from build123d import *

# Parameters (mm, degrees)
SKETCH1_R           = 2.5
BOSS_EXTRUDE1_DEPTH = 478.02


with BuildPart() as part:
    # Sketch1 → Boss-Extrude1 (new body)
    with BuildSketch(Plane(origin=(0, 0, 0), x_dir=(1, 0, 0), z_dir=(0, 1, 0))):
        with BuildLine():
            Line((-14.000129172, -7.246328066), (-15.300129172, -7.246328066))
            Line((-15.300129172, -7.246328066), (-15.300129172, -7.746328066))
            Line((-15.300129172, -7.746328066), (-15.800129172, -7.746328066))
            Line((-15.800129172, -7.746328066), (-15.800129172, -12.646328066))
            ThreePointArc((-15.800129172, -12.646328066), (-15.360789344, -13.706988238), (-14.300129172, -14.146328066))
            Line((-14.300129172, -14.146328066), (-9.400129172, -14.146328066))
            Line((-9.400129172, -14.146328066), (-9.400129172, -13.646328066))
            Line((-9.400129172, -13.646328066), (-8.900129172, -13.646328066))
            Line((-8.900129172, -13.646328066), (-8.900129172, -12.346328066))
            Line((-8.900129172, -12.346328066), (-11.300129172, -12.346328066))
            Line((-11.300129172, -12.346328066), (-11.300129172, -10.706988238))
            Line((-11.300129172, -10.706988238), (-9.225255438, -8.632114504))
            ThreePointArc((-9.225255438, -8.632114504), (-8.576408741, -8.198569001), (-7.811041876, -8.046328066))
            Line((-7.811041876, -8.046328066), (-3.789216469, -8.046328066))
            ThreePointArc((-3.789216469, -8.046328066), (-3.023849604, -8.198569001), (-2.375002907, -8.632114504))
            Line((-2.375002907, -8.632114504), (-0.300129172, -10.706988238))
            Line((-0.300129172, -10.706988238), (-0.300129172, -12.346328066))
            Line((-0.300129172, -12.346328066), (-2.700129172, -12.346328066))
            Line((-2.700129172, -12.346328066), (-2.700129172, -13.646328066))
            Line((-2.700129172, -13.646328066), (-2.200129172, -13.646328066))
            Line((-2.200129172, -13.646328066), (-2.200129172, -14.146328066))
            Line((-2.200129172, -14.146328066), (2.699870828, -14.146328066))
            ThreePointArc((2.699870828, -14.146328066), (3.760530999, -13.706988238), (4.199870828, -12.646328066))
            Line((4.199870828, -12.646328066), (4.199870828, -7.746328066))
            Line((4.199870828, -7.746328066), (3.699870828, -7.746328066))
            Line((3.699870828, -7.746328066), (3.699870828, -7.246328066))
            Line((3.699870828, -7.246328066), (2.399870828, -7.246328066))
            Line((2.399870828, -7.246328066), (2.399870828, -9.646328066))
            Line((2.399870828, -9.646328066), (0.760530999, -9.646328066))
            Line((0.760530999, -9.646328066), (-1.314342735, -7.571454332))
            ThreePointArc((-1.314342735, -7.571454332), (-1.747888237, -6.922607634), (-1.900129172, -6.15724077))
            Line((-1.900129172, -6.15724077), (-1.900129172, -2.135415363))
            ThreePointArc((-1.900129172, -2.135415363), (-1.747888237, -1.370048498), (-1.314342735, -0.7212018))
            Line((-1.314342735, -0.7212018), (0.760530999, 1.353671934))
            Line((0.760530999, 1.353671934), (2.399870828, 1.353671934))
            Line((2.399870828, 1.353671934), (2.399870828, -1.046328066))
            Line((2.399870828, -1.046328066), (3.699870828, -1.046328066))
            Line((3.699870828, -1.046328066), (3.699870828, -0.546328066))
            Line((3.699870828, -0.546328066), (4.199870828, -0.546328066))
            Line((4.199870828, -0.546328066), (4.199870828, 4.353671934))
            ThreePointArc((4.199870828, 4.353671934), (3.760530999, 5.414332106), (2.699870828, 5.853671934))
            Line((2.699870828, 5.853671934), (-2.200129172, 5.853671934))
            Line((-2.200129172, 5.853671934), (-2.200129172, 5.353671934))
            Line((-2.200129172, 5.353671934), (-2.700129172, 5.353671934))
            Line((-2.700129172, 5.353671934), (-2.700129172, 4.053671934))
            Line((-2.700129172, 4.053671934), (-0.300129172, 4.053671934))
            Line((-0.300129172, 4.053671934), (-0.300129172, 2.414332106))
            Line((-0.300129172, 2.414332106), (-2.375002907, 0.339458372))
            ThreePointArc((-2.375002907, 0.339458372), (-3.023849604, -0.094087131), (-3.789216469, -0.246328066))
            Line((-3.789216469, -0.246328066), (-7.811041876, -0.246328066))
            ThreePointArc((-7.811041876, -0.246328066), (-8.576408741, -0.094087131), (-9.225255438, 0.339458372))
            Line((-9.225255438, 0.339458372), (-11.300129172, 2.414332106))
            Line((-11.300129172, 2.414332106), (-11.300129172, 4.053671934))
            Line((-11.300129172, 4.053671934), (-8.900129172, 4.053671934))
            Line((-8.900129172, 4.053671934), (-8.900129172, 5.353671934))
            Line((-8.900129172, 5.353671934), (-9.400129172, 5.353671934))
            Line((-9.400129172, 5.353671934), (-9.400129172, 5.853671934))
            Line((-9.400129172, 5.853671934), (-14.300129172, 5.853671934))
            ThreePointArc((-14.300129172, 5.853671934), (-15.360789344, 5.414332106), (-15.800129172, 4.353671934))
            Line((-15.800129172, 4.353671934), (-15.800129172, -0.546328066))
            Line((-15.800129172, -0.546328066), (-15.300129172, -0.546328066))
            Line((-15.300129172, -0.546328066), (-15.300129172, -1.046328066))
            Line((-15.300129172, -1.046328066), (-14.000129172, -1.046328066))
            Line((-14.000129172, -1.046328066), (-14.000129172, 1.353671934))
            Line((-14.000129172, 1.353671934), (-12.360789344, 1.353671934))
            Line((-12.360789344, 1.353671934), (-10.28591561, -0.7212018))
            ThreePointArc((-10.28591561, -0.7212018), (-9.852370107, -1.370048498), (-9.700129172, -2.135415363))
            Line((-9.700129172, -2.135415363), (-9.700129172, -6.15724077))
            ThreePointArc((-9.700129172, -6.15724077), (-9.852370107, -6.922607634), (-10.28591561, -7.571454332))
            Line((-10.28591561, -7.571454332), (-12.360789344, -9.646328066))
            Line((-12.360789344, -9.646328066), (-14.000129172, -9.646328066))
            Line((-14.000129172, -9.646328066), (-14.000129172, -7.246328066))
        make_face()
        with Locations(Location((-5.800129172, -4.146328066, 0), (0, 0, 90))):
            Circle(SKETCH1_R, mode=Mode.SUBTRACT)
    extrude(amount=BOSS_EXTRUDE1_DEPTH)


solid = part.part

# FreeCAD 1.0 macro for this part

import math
import FreeCAD as App
import Part
import Sketcher

V = App.Vector
Q = App.Units.Quantity

doc = App.newDocument("Part")
params = doc.addObject("Spreadsheet::Sheet", "Params")
for row, (alias, value) in enumerate([
    ("sketch1_diameter", "5 mm"),
    ("sketch1_radius", "2 mm"),
    ("sketch1_radius2", "1.5 mm"),
    ("sketch1_width", "1.3 mm"),
    ("sketch1_width2", "0.5 mm"),
    ("pad1_length", "478.02 mm"),
], start=1):
    params.set(f"A{row}", alias)
    params.set(f"B{row}", "=" + value)
    params.setAlias(f"B{row}", alias)

body = doc.addObject("PartDesign::Body", "Body")

sketch1 = doc.addObject("Sketcher::SketchObject", "Sketch")
body.addObject(sketch1)
sketch1.AttachmentSupport = (doc.XZ_Plane, [""])
sketch1.MapMode = "FlatFace"
sketch1.addGeometry([
    Part.LineSegment(V(-14, 7.2, 0), V(-15.3, 7.2, 0)),
    Part.LineSegment(V(-15.3, 7.2, 0), V(-15.3, 7.7, 0)),
    Part.LineSegment(V(-15.3, 7.7, 0), V(-15.8, 7.7, 0)),
    Part.LineSegment(V(-15.8, 7.7, 0), V(-15.8, 12.6, 0)),
    Part.ArcOfCircle(Part.Circle(V(-14.3, 12.6, 0), V(0, 0, 1), 1.5), math.radians(90), math.radians(180)),
    Part.LineSegment(V(-14.3, 14.1, 0), V(-9.4, 14.1, 0)),
    Part.LineSegment(V(-9.4, 14.1, 0), V(-9.4, 13.6, 0)),
    Part.LineSegment(V(-9.4, 13.6, 0), V(-8.9, 13.6, 0)),
    Part.LineSegment(V(-8.9, 13.6, 0), V(-8.9, 12.3, 0)),
    Part.LineSegment(V(-8.9, 12.3, 0), V(-11.3, 12.3, 0)),
    Part.LineSegment(V(-11.3, 12.3, 0), V(-11.3, 10.7, 0)),
    Part.LineSegment(V(-11.3, 10.7, 0), V(-9.2, 8.6, 0)),
    Part.ArcOfCircle(Part.Circle(V(-7.8, 10, 0), V(0, 0, 1), 2), math.radians(-135), math.radians(-90)),
    Part.LineSegment(V(-7.8, 8, 0), V(-3.8, 8, 0)),
    Part.ArcOfCircle(Part.Circle(V(-3.8, 10, 0), V(0, 0, 1), 2), math.radians(-90), math.radians(-45)),
    Part.LineSegment(V(-2.4, 8.6, 0), V(-0.3, 10.7, 0)),
    Part.LineSegment(V(-0.3, 10.7, 0), V(-0.3, 12.3, 0)),
    Part.LineSegment(V(-0.3, 12.3, 0), V(-2.7, 12.3, 0)),
    Part.LineSegment(V(-2.7, 12.3, 0), V(-2.7, 13.6, 0)),
    Part.LineSegment(V(-2.7, 13.6, 0), V(-2.2, 13.6, 0)),
    Part.LineSegment(V(-2.2, 13.6, 0), V(-2.2, 14.1, 0)),
    Part.LineSegment(V(-2.2, 14.1, 0), V(2.7, 14.1, 0)),
    Part.ArcOfCircle(Part.Circle(V(2.7, 12.6, 0), V(0, 0, 1), 1.5), math.radians(0), math.radians(90)),
    Part.LineSegment(V(4.2, 12.6, 0), V(4.2, 7.7, 0)),
    Part.LineSegment(V(4.2, 7.7, 0), V(3.7, 7.7, 0)),
    Part.LineSegment(V(3.7, 7.7, 0), V(3.7, 7.2, 0)),
    Part.LineSegment(V(3.7, 7.2, 0), V(2.4, 7.2, 0)),
    Part.LineSegment(V(2.4, 7.2, 0), V(2.4, 9.6, 0)),
    Part.LineSegment(V(2.4, 9.6, 0), V(0.8, 9.6, 0)),
    Part.LineSegment(V(0.8, 9.6, 0), V(-1.3, 7.6, 0)),
    Part.ArcOfCircle(Part.Circle(V(0.1, 6.2, 0), V(0, 0, 1), 2), math.radians(135), math.radians(180)),
    Part.LineSegment(V(-1.9, 6.2, 0), V(-1.9, 2.1, 0)),
    Part.ArcOfCircle(Part.Circle(V(0.1, 2.1, 0), V(0, 0, 1), 2), math.radians(-180), math.radians(-135)),
    Part.LineSegment(V(-1.3, 0.7, 0), V(0.8, -1.4, 0)),
    Part.LineSegment(V(0.8, -1.4, 0), V(2.4, -1.4, 0)),
    Part.LineSegment(V(2.4, -1.4, 0), V(2.4, 1, 0)),
    Part.LineSegment(V(2.4, 1, 0), V(3.7, 1, 0)),
    Part.LineSegment(V(3.7, 1, 0), V(3.7, 0.5, 0)),
    Part.LineSegment(V(3.7, 0.5, 0), V(4.2, 0.5, 0)),
    Part.LineSegment(V(4.2, 0.5, 0), V(4.2, -4.4, 0)),
    Part.ArcOfCircle(Part.Circle(V(2.7, -4.4, 0), V(0, 0, 1), 1.5), math.radians(-90), math.radians(0)),
    Part.LineSegment(V(2.7, -5.9, 0), V(-2.2, -5.9, 0)),
    Part.LineSegment(V(-2.2, -5.9, 0), V(-2.2, -5.4, 0)),
    Part.LineSegment(V(-2.2, -5.4, 0), V(-2.7, -5.4, 0)),
    Part.LineSegment(V(-2.7, -5.4, 0), V(-2.7, -4.1, 0)),
    Part.LineSegment(V(-2.7, -4.1, 0), V(-0.3, -4.1, 0)),
    Part.LineSegment(V(-0.3, -4.1, 0), V(-0.3, -2.4, 0)),
    Part.LineSegment(V(-0.3, -2.4, 0), V(-2.4, -0.3, 0)),
    Part.ArcOfCircle(Part.Circle(V(-3.8, -1.8, 0), V(0, 0, 1), 2), math.radians(45), math.radians(90)),
    Part.LineSegment(V(-3.8, 0.2, 0), V(-7.8, 0.2, 0)),
    Part.ArcOfCircle(Part.Circle(V(-7.8, -1.8, 0), V(0, 0, 1), 2), math.radians(90), math.radians(135)),
    Part.LineSegment(V(-9.2, -0.3, 0), V(-11.3, -2.4, 0)),
    Part.LineSegment(V(-11.3, -2.4, 0), V(-11.3, -4.1, 0)),
    Part.LineSegment(V(-11.3, -4.1, 0), V(-8.9, -4.1, 0)),
    Part.LineSegment(V(-8.9, -4.1, 0), V(-8.9, -5.4, 0)),
    Part.LineSegment(V(-8.9, -5.4, 0), V(-9.4, -5.4, 0)),
    Part.LineSegment(V(-9.4, -5.4, 0), V(-9.4, -5.9, 0)),
    Part.LineSegment(V(-9.4, -5.9, 0), V(-14.3, -5.9, 0)),
    Part.ArcOfCircle(Part.Circle(V(-14.3, -4.4, 0), V(0, 0, 1), 1.5), math.radians(180), math.radians(270)),
    Part.LineSegment(V(-15.8, -4.4, 0), V(-15.8, 0.5, 0)),
    Part.LineSegment(V(-15.8, 0.5, 0), V(-15.3, 0.5, 0)),
    Part.LineSegment(V(-15.3, 0.5, 0), V(-15.3, 1, 0)),
    Part.LineSegment(V(-15.3, 1, 0), V(-14, 1, 0)),
    Part.LineSegment(V(-14, 1, 0), V(-14, -1.4, 0)),
    Part.LineSegment(V(-14, -1.4, 0), V(-12.4, -1.4, 0)),
    Part.LineSegment(V(-12.4, -1.4, 0), V(-10.3, 0.7, 0)),
    Part.ArcOfCircle(Part.Circle(V(-11.7, 2.1, 0), V(0, 0, 1), 2), math.radians(-45), math.radians(0)),
    Part.LineSegment(V(-9.7, 2.1, 0), V(-9.7, 6.2, 0)),
    Part.ArcOfCircle(Part.Circle(V(-11.7, 6.2, 0), V(0, 0, 1), 2), math.radians(0), math.radians(45)),
    Part.LineSegment(V(-10.3, 7.6, 0), V(-12.4, 9.6, 0)),
    Part.LineSegment(V(-12.4, 9.6, 0), V(-14, 9.6, 0)),
    Part.LineSegment(V(-14, 9.6, 0), V(-14, 7.2, 0)),
    Part.Circle(V(-5.8, 4.1, 0), V(0, 0, 1), 2.5),
], False)
sketch1.addConstraint([
    Sketcher.Constraint("Coincident", 0, 2, 1, 1),
    Sketcher.Constraint("Coincident", 1, 2, 2, 1),
    Sketcher.Constraint("Coincident", 2, 2, 3, 1),
    Sketcher.Constraint("Tangent", 3, 2, 4, 2),
    Sketcher.Constraint("Tangent", 4, 1, 5, 1),
    Sketcher.Constraint("Coincident", 5, 2, 6, 1),
    Sketcher.Constraint("Coincident", 6, 2, 7, 1),
    Sketcher.Constraint("Coincident", 7, 2, 8, 1),
    Sketcher.Constraint("Coincident", 8, 2, 9, 1),
    Sketcher.Constraint("Coincident", 9, 2, 10, 1),
    Sketcher.Constraint("Coincident", 10, 2, 11, 1),
    Sketcher.Constraint("Tangent", 11, 2, 12, 1),
    Sketcher.Constraint("Tangent", 12, 2, 13, 1),
    Sketcher.Constraint("Tangent", 13, 2, 14, 1),
    Sketcher.Constraint("Tangent", 14, 2, 15, 1),
    Sketcher.Constraint("Coincident", 15, 2, 16, 1),
    Sketcher.Constraint("Coincident", 16, 2, 17, 1),
    Sketcher.Constraint("Coincident", 17, 2, 18, 1),
    Sketcher.Constraint("Coincident", 18, 2, 19, 1),
    Sketcher.Constraint("Coincident", 19, 2, 20, 1),
    Sketcher.Constraint("Coincident", 20, 2, 21, 1),
    Sketcher.Constraint("Tangent", 21, 2, 22, 2),
    Sketcher.Constraint("Tangent", 22, 1, 23, 1),
    Sketcher.Constraint("Coincident", 23, 2, 24, 1),
    Sketcher.Constraint("Coincident", 24, 2, 25, 1),
    Sketcher.Constraint("Coincident", 25, 2, 26, 1),
    Sketcher.Constraint("Coincident", 26, 2, 27, 1),
    Sketcher.Constraint("Coincident", 27, 2, 28, 1),
    Sketcher.Constraint("Coincident", 28, 2, 29, 1),
    Sketcher.Constraint("Tangent", 29, 2, 30, 1),
    Sketcher.Constraint("Tangent", 30, 2, 31, 1),
    Sketcher.Constraint("Tangent", 31, 2, 32, 1),
    Sketcher.Constraint("Tangent", 32, 2, 33, 1),
    Sketcher.Constraint("Coincident", 33, 2, 34, 1),
    Sketcher.Constraint("Coincident", 34, 2, 35, 1),
    Sketcher.Constraint("Coincident", 35, 2, 36, 1),
    Sketcher.Constraint("Coincident", 36, 2, 37, 1),
    Sketcher.Constraint("Coincident", 37, 2, 38, 1),
    Sketcher.Constraint("Coincident", 38, 2, 39, 1),
    Sketcher.Constraint("Tangent", 39, 2, 40, 2),
    Sketcher.Constraint("Tangent", 40, 1, 41, 1),
    Sketcher.Constraint("Coincident", 41, 2, 42, 1),
    Sketcher.Constraint("Coincident", 42, 2, 43, 1),
    Sketcher.Constraint("Coincident", 43, 2, 44, 1),
    Sketcher.Constraint("Coincident", 44, 2, 45, 1),
    Sketcher.Constraint("Coincident", 45, 2, 46, 1),
    Sketcher.Constraint("Coincident", 46, 2, 47, 1),
    Sketcher.Constraint("Tangent", 47, 2, 48, 1),
    Sketcher.Constraint("Tangent", 48, 2, 49, 1),
    Sketcher.Constraint("Tangent", 49, 2, 50, 1),
    Sketcher.Constraint("Tangent", 50, 2, 51, 1),
    Sketcher.Constraint("Coincident", 51, 2, 52, 1),
    Sketcher.Constraint("Coincident", 52, 2, 53, 1),
    Sketcher.Constraint("Coincident", 53, 2, 54, 1),
    Sketcher.Constraint("Coincident", 54, 2, 55, 1),
    Sketcher.Constraint("Coincident", 55, 2, 56, 1),
    Sketcher.Constraint("Coincident", 56, 2, 57, 1),
    Sketcher.Constraint("Tangent", 57, 2, 58, 2),
    Sketcher.Constraint("Tangent", 58, 1, 59, 1),
    Sketcher.Constraint("Coincident", 59, 2, 60, 1),
    Sketcher.Constraint("Coincident", 60, 2, 61, 1),
    Sketcher.Constraint("Coincident", 61, 2, 62, 1),
    Sketcher.Constraint("Coincident", 62, 2, 63, 1),
    Sketcher.Constraint("Coincident", 63, 2, 64, 1),
    Sketcher.Constraint("Coincident", 64, 2, 65, 1),
    Sketcher.Constraint("Tangent", 65, 2, 66, 1),
    Sketcher.Constraint("Tangent", 66, 2, 67, 1),
    Sketcher.Constraint("Tangent", 67, 2, 68, 1),
    Sketcher.Constraint("Tangent", 68, 2, 69, 1),
    Sketcher.Constraint("Coincident", 69, 2, 70, 1),
    Sketcher.Constraint("Coincident", 70, 2, 71, 1),
    Sketcher.Constraint("Coincident", 71, 2, 0, 1),
    Sketcher.Constraint("Horizontal", 0),
    Sketcher.Constraint("Vertical", 1),
    Sketcher.Constraint("Horizontal", 2),
    Sketcher.Constraint("Vertical", 3),
    Sketcher.Constraint("Horizontal", 5),
    Sketcher.Constraint("Vertical", 6),
    Sketcher.Constraint("Horizontal", 7),
    Sketcher.Constraint("Vertical", 8),
    Sketcher.Constraint("Horizontal", 9),
    Sketcher.Constraint("Vertical", 10),
    Sketcher.Constraint("Horizontal", 13),
    Sketcher.Constraint("Vertical", 16),
    Sketcher.Constraint("Horizontal", 17),
    Sketcher.Constraint("Vertical", 18),
    Sketcher.Constraint("Horizontal", 19),
    Sketcher.Constraint("Vertical", 20),
    Sketcher.Constraint("Horizontal", 21),
    Sketcher.Constraint("Vertical", 23),
    Sketcher.Constraint("Horizontal", 24),
    Sketcher.Constraint("Vertical", 25),
    Sketcher.Constraint("Horizontal", 26),
    Sketcher.Constraint("Vertical", 27),
    Sketcher.Constraint("Horizontal", 28),
    Sketcher.Constraint("Vertical", 31),
    Sketcher.Constraint("Horizontal", 34),
    Sketcher.Constraint("Vertical", 35),
    Sketcher.Constraint("Horizontal", 36),
    Sketcher.Constraint("Vertical", 37),
    Sketcher.Constraint("Horizontal", 38),
    Sketcher.Constraint("Vertical", 39),
    Sketcher.Constraint("Horizontal", 41),
    Sketcher.Constraint("Vertical", 42),
    Sketcher.Constraint("Horizontal", 43),
    Sketcher.Constraint("Vertical", 44),
    Sketcher.Constraint("Horizontal", 45),
    Sketcher.Constraint("Vertical", 46),
    Sketcher.Constraint("Horizontal", 49),
    Sketcher.Constraint("Vertical", 52),
    Sketcher.Constraint("Horizontal", 53),
    Sketcher.Constraint("Vertical", 54),
    Sketcher.Constraint("Horizontal", 55),
    Sketcher.Constraint("Vertical", 56),
    Sketcher.Constraint("Horizontal", 57),
    Sketcher.Constraint("Vertical", 59),
    Sketcher.Constraint("Horizontal", 60),
    Sketcher.Constraint("Vertical", 61),
    Sketcher.Constraint("Horizontal", 62),
    Sketcher.Constraint("Vertical", 63),
    Sketcher.Constraint("Horizontal", 64),
    Sketcher.Constraint("Vertical", 67),
    Sketcher.Constraint("Horizontal", 70),
    Sketcher.Constraint("Vertical", 71),
    Sketcher.Constraint("Equal", 12, 14),
    Sketcher.Constraint("Equal", 4, 22),
    Sketcher.Constraint("Equal", 14, 30),
    Sketcher.Constraint("Equal", 30, 32),
    Sketcher.Constraint("Equal", 22, 40),
    Sketcher.Constraint("Equal", 32, 48),
    Sketcher.Constraint("Equal", 48, 50),
    Sketcher.Constraint("Equal", 40, 58),
    Sketcher.Constraint("Equal", 50, 66),
    Sketcher.Constraint("Equal", 66, 68),
    Sketcher.Constraint("Perpendicular", 11, 15),
    Sketcher.Constraint("Parallel", 15, 29),
    Sketcher.Constraint("Perpendicular", 29, 33),
    Sketcher.Constraint("Parallel", 33, 47),
    Sketcher.Constraint("Perpendicular", 47, 51),
    Sketcher.Constraint("Parallel", 51, 65),
    Sketcher.Constraint("Perpendicular", 65, 69),
    Sketcher.Constraint("Horizontal", 4, 3, 22, 3),
    Sketcher.Constraint("Horizontal", 40, 3, 58, 3),
    Sketcher.Constraint("Horizontal", 32, 3, 66, 3),
    Sketcher.Constraint("Horizontal", 30, 3, 68, 3),
    Sketcher.Constraint("Horizontal", 11, 2, 14, 2),
    Sketcher.Constraint("Horizontal", 10, 2, 15, 2),
    Sketcher.Constraint("Horizontal", 9, 2, 16, 2),
    Sketcher.Constraint("Horizontal", 7, 2, 18, 2),
    Sketcher.Constraint("Horizontal", 2, 2, 23, 2),
    Sketcher.Constraint("Horizontal", 0, 2, 25, 2),
    Sketcher.Constraint("Horizontal", 46, 2, 51, 2),
    Sketcher.Constraint("Horizontal", 45, 2, 52, 2),
    Sketcher.Constraint("Horizontal", 43, 2, 54, 2),
    Sketcher.Constraint("Horizontal", 38, 2, 59, 2),
    Sketcher.Constraint("Horizontal", 36, 2, 61, 2),
    Sketcher.Constraint("Horizontal", 34, 2, 63, 2),
    Sketcher.Constraint("Horizontal", 28, 2, 69, 2),
    Sketcher.Constraint("Vertical", 22, 3, 40, 3),
    Sketcher.Constraint("Vertical", 14, 3, 48, 3),
    Sketcher.Constraint("Vertical", 12, 3, 50, 3),
    Sketcher.Constraint("Vertical", 4, 3, 58, 3),
    Sketcher.Constraint("Vertical", 28, 2, 33, 2),
    Sketcher.Constraint("Vertical", 27, 2, 34, 2),
    Sketcher.Constraint("Vertical", 25, 2, 36, 2),
    Sketcher.Constraint("Vertical", 20, 2, 41, 2),
    Sketcher.Constraint("Vertical", 18, 2, 43, 2),
    Sketcher.Constraint("Vertical", 16, 2, 45, 2),
    Sketcher.Constraint("Vertical", 8, 2, 53, 2),
    Sketcher.Constraint("Vertical", 6, 2, 55, 2),
    Sketcher.Constraint("Vertical", 1, 2, 60, 2),
    Sketcher.Constraint("Vertical", 63, 2, 70, 2),
    Sketcher.Constraint("Equal", 2, 7),
    Sketcher.Constraint("Equal", 9, 17),
    Sketcher.Constraint("Equal", 7, 19),
    Sketcher.Constraint("Equal", 5, 21),
    Sketcher.Constraint("Equal", 19, 24),
    Sketcher.Constraint("Equal", 0, 26),
    Sketcher.Constraint("Equal", 34, 64),
    Sketcher.Constraint("Equal", 60, 1),
    Sketcher.Constraint("Equal", 57, 3),
    Sketcher.Constraint("Equal", 1, 6),
    Sketcher.Constraint("Equal", 62, 8),
    Sketcher.Constraint("Equal", 70, 10),
    Sketcher.Constraint("Equal", 53, 27),
    Sketcher.Constraint("Equal", 49, 31),
    Sketcher.Constraint("Equal", 27, 35),
    Sketcher.Constraint("Equal", 25, 37),
    Sketcher.Constraint("Equal", 23, 39),
    Sketcher.Constraint("Equal", 37, 42),
    Sketcher.Constraint("Equal", 18, 44),
    Sketcher.Constraint("Equal", 16, 46),
    Sketcher.Constraint("Equal", 15, 29),
    Sketcher.Constraint("Diameter", 72, Q("5 mm")),
    Sketcher.Constraint("Radius", 12, Q("2 mm")),
    Sketcher.Constraint("Radius", 4, Q("1.5 mm")),
    Sketcher.Constraint("DistanceX", 0, 2, 0, 1, Q("1.3 mm")),
    Sketcher.Constraint("DistanceX", 2, 2, 2, 1, Q("0.5 mm")),
    Sketcher.Constraint("DistanceX", 5, 1, 5, 2, Q("4.9 mm")),
    Sketcher.Constraint("DistanceX", 9, 2, 9, 1, Q("2.4 mm")),
    Sketcher.Constraint("DistanceX", 28, 2, 28, 1, Q("1.63934 mm")),
    Sketcher.Constraint("DistanceY", -1, 1, 32, 2, Q("0.721202 mm")),
    Sketcher.Constraint("DistanceX", 13, 1, 13, 2, Q("4.021825 mm")),
    Sketcher.Constraint("DistanceX", 4, 3, -1, 1, Q("14.300129 mm")),
    Sketcher.Constraint("DistanceY", -1, 1, 4, 3, Q("12.646328 mm")),
    Sketcher.Constraint("DistanceX", 72, 3, -1, 1, Q("5.800129 mm")),
    Sketcher.Constraint("DistanceY", -1, 1, 72, 3, Q("4.146328 mm")),
])
sketch1.setExpression("Constraints[193]", "Params.sketch1_diameter")
sketch1.setExpression("Constraints[194]", "Params.sketch1_radius")
sketch1.setExpression("Constraints[195]", "Params.sketch1_radius2")
sketch1.setExpression("Constraints[196]", "Params.sketch1_width")
sketch1.setExpression("Constraints[197]", "Params.sketch1_width2")
pad1 = doc.addObject("PartDesign::Pad", "Pad")
body.addObject(pad1)
pad1.Profile = sketch1
pad1.setExpression("Length", "Params.pad1_length")
pad1.Reversed = True

doc.recompute()
